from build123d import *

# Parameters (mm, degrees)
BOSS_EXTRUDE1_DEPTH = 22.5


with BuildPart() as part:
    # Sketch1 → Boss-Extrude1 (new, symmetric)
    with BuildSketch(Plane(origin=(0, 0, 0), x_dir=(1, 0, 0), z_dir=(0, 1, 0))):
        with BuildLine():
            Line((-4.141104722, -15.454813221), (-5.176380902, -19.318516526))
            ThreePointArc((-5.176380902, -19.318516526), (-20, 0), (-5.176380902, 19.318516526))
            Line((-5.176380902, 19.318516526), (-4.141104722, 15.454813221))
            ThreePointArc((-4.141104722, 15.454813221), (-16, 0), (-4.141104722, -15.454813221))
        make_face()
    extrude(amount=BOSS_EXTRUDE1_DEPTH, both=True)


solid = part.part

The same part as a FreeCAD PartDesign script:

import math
import FreeCAD as App
import Part
import Sketcher

V = App.Vector
Q = App.Units.Quantity

doc = App.newDocument("Part")
params = doc.addObject("Spreadsheet::Sheet", "Params")
for row, (alias, value) in enumerate([
    ("sketch1_radius", "16 mm"),
    ("sketch1_radius2", "20 mm"),
    ("pad1_length", "45 mm"),
], start=1):
    params.set(f"A{row}", alias)
    params.set(f"B{row}", "=" + value)
    params.setAlias(f"B{row}", alias)

body = doc.addObject("PartDesign::Body", "Body")

# Sketch on XZ plane
sketch1 = body.newObject("Sketcher::SketchObject", "Sketch")
sketch1.AttachmentSupport = (doc.getObject("XZ_Plane"), [""])
sketch1.MapMode = "FlatFace"
sketch1.addGeometry(Part.LineSegment(V(-5.2, 19.3, 0), V(-4.1, 15.5, 0)), False)
sketch1.addGeometry(Part.ArcOfCircle(Part.Circle(V(0, 0, 0), V(0, 0, 1), 16), math.radians(105), math.radians(255)), False)
sketch1.addGeometry(Part.LineSegment(V(-4.1, -15.5, 0), V(-5.2, -19.3, 0)), False)
sketch1.addGeometry(Part.ArcOfCircle(Part.Circle(V(0, 0, 0), V(0, 0, 1), 20), math.radians(105), math.radians(255)), False)
sketch1.addConstraint(Sketcher.Constraint("Coincident", 0, 2, 1, 1))
sketch1.addConstraint(Sketcher.Constraint("Coincident", 1, 2, 2, 1))
sketch1.addConstraint(Sketcher.Constraint("Coincident", 2, 2, 3, 2))
sketch1.addConstraint(Sketcher.Constraint("Coincident", 3, 1, 0, 1))
sketch1.addConstraint(Sketcher.Constraint("Coincident", 1, 3, -1, 1))
sketch1.addConstraint(Sketcher.Constraint("Coincident", 3, 3, -1, 1))
sketch1.addConstraint(Sketcher.Constraint("Vertical", 0, 2, 1, 2))
sketch1.addConstraint(Sketcher.Constraint("Vertical", 2, 2, 3, 1))
sketch1.addConstraint(Sketcher.Constraint("Radius", 1, 16.0))
sketch1.addConstraint(Sketcher.Constraint("Radius", 3, 20.0))
sketch1.addConstraint(Sketcher.Constraint("Angle", 0, Q("-75 deg")))
sketch1.addConstraint(Sketcher.Constraint("DistanceX", 2, 2, -1, 1, 5.176381))
sketch1.setExpression("Constraints[8]", "Params.sketch1_radius")
sketch1.setExpression("Constraints[9]", "Params.sketch1_radius2")
pad1 = body.newObject("PartDesign::Pad", "Pad")
pad1.Profile = sketch1
pad1.setExpression("Length", "Params.pad1_length")
pad1.Midplane = True

doc.recompute()
